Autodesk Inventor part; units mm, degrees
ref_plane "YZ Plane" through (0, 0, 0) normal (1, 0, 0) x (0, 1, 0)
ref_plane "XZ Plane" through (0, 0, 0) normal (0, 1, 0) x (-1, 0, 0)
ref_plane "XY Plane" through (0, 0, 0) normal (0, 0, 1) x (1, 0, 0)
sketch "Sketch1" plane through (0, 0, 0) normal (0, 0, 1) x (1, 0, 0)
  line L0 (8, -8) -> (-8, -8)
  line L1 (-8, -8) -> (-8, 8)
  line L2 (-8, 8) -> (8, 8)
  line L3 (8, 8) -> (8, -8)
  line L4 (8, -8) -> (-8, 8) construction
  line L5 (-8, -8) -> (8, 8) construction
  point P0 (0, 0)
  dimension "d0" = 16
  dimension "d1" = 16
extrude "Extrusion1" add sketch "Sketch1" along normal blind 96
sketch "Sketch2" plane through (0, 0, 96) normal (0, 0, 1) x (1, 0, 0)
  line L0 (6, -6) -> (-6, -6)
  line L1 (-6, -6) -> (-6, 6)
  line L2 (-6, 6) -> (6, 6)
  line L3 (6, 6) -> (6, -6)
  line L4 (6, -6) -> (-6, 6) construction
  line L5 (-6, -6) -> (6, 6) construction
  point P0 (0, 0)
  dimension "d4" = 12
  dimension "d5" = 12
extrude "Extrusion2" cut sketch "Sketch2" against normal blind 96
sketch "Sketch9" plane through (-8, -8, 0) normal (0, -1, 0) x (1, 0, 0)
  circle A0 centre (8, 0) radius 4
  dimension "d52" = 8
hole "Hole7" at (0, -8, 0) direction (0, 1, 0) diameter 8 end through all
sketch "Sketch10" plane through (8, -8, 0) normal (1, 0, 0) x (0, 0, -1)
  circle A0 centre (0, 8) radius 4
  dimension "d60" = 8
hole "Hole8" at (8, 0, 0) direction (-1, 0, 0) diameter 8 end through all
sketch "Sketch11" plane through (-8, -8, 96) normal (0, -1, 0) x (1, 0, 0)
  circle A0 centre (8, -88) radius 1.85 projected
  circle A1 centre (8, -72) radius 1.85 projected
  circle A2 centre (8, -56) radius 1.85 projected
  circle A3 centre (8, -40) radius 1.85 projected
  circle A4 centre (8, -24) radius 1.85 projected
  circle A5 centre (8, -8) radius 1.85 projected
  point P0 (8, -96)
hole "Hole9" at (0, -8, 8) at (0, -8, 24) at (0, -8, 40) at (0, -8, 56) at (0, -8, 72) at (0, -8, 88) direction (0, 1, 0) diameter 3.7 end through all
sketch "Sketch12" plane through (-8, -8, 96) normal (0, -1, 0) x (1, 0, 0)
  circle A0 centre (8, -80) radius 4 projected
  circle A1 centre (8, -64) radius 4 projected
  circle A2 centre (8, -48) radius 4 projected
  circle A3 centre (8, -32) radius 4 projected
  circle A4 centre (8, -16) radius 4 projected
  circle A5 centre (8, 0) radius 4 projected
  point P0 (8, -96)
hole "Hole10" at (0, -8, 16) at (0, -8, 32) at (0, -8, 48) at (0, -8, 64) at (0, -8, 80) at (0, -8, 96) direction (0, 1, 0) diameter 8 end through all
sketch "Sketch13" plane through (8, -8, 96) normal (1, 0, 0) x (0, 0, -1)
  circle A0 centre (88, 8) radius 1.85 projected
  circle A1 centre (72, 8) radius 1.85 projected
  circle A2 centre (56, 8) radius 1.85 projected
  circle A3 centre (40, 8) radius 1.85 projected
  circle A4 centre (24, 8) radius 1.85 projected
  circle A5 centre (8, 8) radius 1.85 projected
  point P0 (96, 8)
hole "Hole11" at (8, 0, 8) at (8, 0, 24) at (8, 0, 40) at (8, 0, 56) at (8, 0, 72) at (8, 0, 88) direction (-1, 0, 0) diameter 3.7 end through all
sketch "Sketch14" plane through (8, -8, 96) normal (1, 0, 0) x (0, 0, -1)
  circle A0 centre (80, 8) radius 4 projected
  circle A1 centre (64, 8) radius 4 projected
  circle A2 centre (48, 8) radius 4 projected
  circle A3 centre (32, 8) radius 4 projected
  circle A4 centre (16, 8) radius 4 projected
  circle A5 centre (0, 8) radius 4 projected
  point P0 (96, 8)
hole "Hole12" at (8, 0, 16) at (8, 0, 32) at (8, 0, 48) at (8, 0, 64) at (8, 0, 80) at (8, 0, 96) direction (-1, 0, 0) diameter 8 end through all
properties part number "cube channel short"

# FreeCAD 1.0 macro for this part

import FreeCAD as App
import Part
import Sketcher
from FreeCAD import Vector
Q = App.Units.Quantity

doc = App.newDocument("Part")
body = doc.addObject("PartDesign::Body", "Body")

# Sketch on XY plane
sketch1 = doc.addObject("Sketcher::SketchObject", "Sketch")
body.addObject(sketch1)
sketch1.AttachmentSupport = (doc.XY_Plane, [""])
sketch1.MapMode = "FlatFace"
sketch1.addGeometry([
    Part.LineSegment(Vector(-8, -8, 0), Vector(8, -8, 0)),
    Part.LineSegment(Vector(8, -8, 0), Vector(8, 8, 0)),
    Part.LineSegment(Vector(8, 8, 0), Vector(-8, 8, 0)),
    Part.LineSegment(Vector(-8, 8, 0), Vector(-8, -8, 0)),
], False)
sketch1.addConstraint([
    Sketcher.Constraint("Coincident", 0, 2, 1, 1),
    Sketcher.Constraint("Coincident", 1, 2, 2, 1),
    Sketcher.Constraint("Coincident", 2, 2, 3, 1),
    Sketcher.Constraint("Coincident", 3, 2, 0, 1),
    Sketcher.Constraint("Horizontal", 0),
    Sketcher.Constraint("Vertical", 1),
    Sketcher.Constraint("Horizontal", 2),
    Sketcher.Constraint("Vertical", 3),
    Sketcher.Constraint("Symmetric", 0, 2, 2, 2, -1, 1),
    Sketcher.Constraint("Equal", 2, 1),
    Sketcher.Constraint("DistanceX", 0, 1, 0, 2, Q("16 mm")),
])
pad1 = doc.addObject("PartDesign::Pad", "Pad")
body.addObject(pad1)
pad1.Profile = sketch1
pad1.Length = 96

# Sketch on XY plane
sketch2 = doc.addObject("Sketcher::SketchObject", "Sketch001")
body.addObject(sketch2)
sketch2.AttachmentSupport = (doc.XY_Plane, [""])
sketch2.MapMode = "FlatFace"
sketch2.AttachmentOffset = App.Placement(Vector(0, 0, 96), App.Rotation())
sketch2.addGeometry([
    Part.LineSegment(Vector(-6, -6, 0), Vector(6, -6, 0)),
    Part.LineSegment(Vector(6, -6, 0), Vector(6, 6, 0)),
    Part.LineSegment(Vector(6, 6, 0), Vector(-6, 6, 0)),
    Part.LineSegment(Vector(-6, 6, 0), Vector(-6, -6, 0)),
], False)
sketch2.addConstraint([
    Sketcher.Constraint("Coincident", 0, 2, 1, 1),
    Sketcher.Constraint("Coincident", 1, 2, 2, 1),
    Sketcher.Constraint("Coincident", 2, 2, 3, 1),
    Sketcher.Constraint("Coincident", 3, 2, 0, 1),
    Sketcher.Constraint("Horizontal", 0),
    Sketcher.Constraint("Vertical", 1),
    Sketcher.Constraint("Horizontal", 2),
    Sketcher.Constraint("Vertical", 3),
    Sketcher.Constraint("Symmetric", 0, 2, 2, 2, -1, 1),
    Sketcher.Constraint("Equal", 2, 1),
    Sketcher.Constraint("DistanceX", 0, 1, 0, 2, Q("12 mm")),
])
pocket1 = doc.addObject("PartDesign::Pocket", "Pocket")
body.addObject(pocket1)
pocket1.Profile = sketch2
pocket1.Length = 96

# Sketch on XZ plane
sketch3 = doc.addObject("Sketcher::SketchObject", "Sketch002")
body.addObject(sketch3)
sketch3.AttachmentSupport = (doc.XZ_Plane, [""])
sketch3.MapMode = "FlatFace"
sketch3.AttachmentOffset = App.Placement(Vector(0, 0, 8), App.Rotation())
sketch3.addGeometry(Part.Circle(Vector(0, 0, 0), Vector(0, 0, 1), 4), False)
sketch3.addConstraint([
    Sketcher.Constraint("Coincident", 0, 3, -1, 1),
    Sketcher.Constraint("Diameter", 0, Q("8 mm")),
])
doc.recompute()
hole = doc.addObject("PartDesign::Hole", "Hole")
body.addObject(hole)
hole.Profile = sketch3
hole.ThreadType = "None"
hole.Diameter = 8
hole.DepthType = "ThroughAll"

# Sketch on YZ plane
sketch4 = doc.addObject("Sketcher::SketchObject", "Sketch003")
body.addObject(sketch4)
sketch4.AttachmentSupport = (doc.YZ_Plane, [""])
sketch4.MapMode = "FlatFace"
sketch4.AttachmentOffset = App.Placement(Vector(0, 0, 8), App.Rotation())
sketch4.addGeometry(Part.Circle(Vector(0, 0, 0), Vector(0, 0, 1), 4), False)
sketch4.addConstraint([
    Sketcher.Constraint("Coincident", 0, 3, -1, 1),
    Sketcher.Constraint("Diameter", 0, Q("8 mm")),
])
doc.recompute()
hole2 = doc.addObject("PartDesign::Hole", "Hole001")
body.addObject(hole2)
hole2.Profile = sketch4
hole2.ThreadType = "None"
hole2.Diameter = 8
hole2.DepthType = "ThroughAll"

# Sketch on XZ plane
sketch5 = doc.addObject("Sketcher::SketchObject", "Sketch004")
body.addObject(sketch5)
sketch5.AttachmentSupport = (doc.XZ_Plane, [""])
sketch5.MapMode = "FlatFace"
sketch5.AttachmentOffset = App.Placement(Vector(0, 0, 8), App.Rotation())
sketch5.addGeometry([
    Part.Circle(Vector(0, 8, 0), Vector(0, 0, 1), 1.9),  # 0
    Part.Circle(Vector(0, 24, 0), Vector(0, 0, 1), 1.9),  # 1
    Part.Circle(Vector(0, 40, 0), Vector(0, 0, 1), 1.9),  # 2
    Part.Circle(Vector(0, 56, 0), Vector(0, 0, 1), 1.9),  # 3
    Part.Circle(Vector(0, 72, 0), Vector(0, 0, 1), 1.9),  # 4
    Part.Circle(Vector(0, 88, 0), Vector(0, 0, 1), 1.9),  # 5
], False)
sketch5.addConstraint([
    Sketcher.Constraint("Equal", 0, 1),
    Sketcher.Constraint("Equal", 1, 2),
    Sketcher.Constraint("Equal", 2, 3),
    Sketcher.Constraint("Equal", 3, 4),
    Sketcher.Constraint("Equal", 4, 5),
    Sketcher.Constraint("PointOnObject", 0, 3, -2),
    Sketcher.Constraint("PointOnObject", 1, 3, -2),
    Sketcher.Constraint("PointOnObject", 2, 3, -2),
    Sketcher.Constraint("PointOnObject", 3, 3, -2),
    Sketcher.Constraint("PointOnObject", 4, 3, -2),
    Sketcher.Constraint("PointOnObject", 5, 3, -2),
    Sketcher.Constraint("Diameter", 0, Q("3.7 mm")),
    Sketcher.Constraint("DistanceY", -1, 1, 0, 3, Q("8 mm")),
    Sketcher.Constraint("DistanceY", -1, 1, 1, 3, Q("24 mm")),
    Sketcher.Constraint("DistanceY", -1, 1, 2, 3, Q("40 mm")),
    Sketcher.Constraint("DistanceY", -1, 1, 3, 3, Q("56 mm")),
    Sketcher.Constraint("DistanceY", -1, 1, 4, 3, Q("72 mm")),
    Sketcher.Constraint("DistanceY", -1, 1, 5, 3, Q("88 mm")),
])
doc.recompute()
hole3 = doc.addObject("PartDesign::Hole", "Hole002")
body.addObject(hole3)
hole3.Profile = sketch5
hole3.ThreadType = "None"
hole3.Diameter = 3.7
hole3.DepthType = "ThroughAll"

# Sketch on XZ plane
sketch6 = doc.addObject("Sketcher::SketchObject", "Sketch005")
body.addObject(sketch6)
sketch6.AttachmentSupport = (doc.XZ_Plane, [""])
sketch6.MapMode = "FlatFace"
sketch6.AttachmentOffset = App.Placement(Vector(0, 0, 8), App.Rotation())
sketch6.addGeometry([
    Part.Circle(Vector(0, 16, 0), Vector(0, 0, 1), 4),  # 0
    Part.Circle(Vector(0, 32, 0), Vector(0, 0, 1), 4),  # 1
    Part.Circle(Vector(0, 48, 0), Vector(0, 0, 1), 4),  # 2
    Part.Circle(Vector(0, 64, 0), Vector(0, 0, 1), 4),  # 3
    Part.Circle(Vector(0, 80, 0), Vector(0, 0, 1), 4),  # 4
    Part.Circle(Vector(0, 96, 0), Vector(0, 0, 1), 4),  # 5
], False)
sketch6.addConstraint([
    Sketcher.Constraint("Equal", 0, 1),
    Sketcher.Constraint("Equal", 1, 2),
    Sketcher.Constraint("Equal", 2, 3),
    Sketcher.Constraint("Equal", 3, 4),
    Sketcher.Constraint("Equal", 4, 5),
    Sketcher.Constraint("PointOnObject", 0, 3, -2),
    Sketcher.Constraint("PointOnObject", 1, 3, -2),
    Sketcher.Constraint("PointOnObject", 2, 3, -2),
    Sketcher.Constraint("PointOnObject", 3, 3, -2),
    Sketcher.Constraint("PointOnObject", 4, 3, -2),
    Sketcher.Constraint("PointOnObject", 5, 3, -2),
    Sketcher.Constraint("Diameter", 0, Q("8 mm")),
    Sketcher.Constraint("DistanceY", -1, 1, 0, 3, Q("16 mm")),
    Sketcher.Constraint("DistanceY", -1, 1, 1, 3, Q("32 mm")),
    Sketcher.Constraint("DistanceY", -1, 1, 2, 3, Q("48 mm")),
    Sketcher.Constraint("DistanceY", -1, 1, 3, 3, Q("64 mm")),
    Sketcher.Constraint("DistanceY", -1, 1, 4, 3, Q("80 mm")),
    Sketcher.Constraint("DistanceY", -1, 1, 5, 3, Q("96 mm")),
])
doc.recompute()
hole4 = doc.addObject("PartDesign::Hole", "Hole003")
body.addObject(hole4)
hole4.Profile = sketch6
hole4.ThreadType = "None"
hole4.Diameter = 8
hole4.DepthType = "ThroughAll"

# Sketch on YZ plane
sketch7 = doc.addObject("Sketcher::SketchObject", "Sketch006")
body.addObject(sketch7)
sketch7.AttachmentSupport = (doc.YZ_Plane, [""])
sketch7.MapMode = "FlatFace"
sketch7.AttachmentOffset = App.Placement(Vector(0, 0, 8), App.Rotation())
sketch7.addGeometry([
    Part.Circle(Vector(0, 8, 0), Vector(0, 0, 1), 1.9),  # 0
    Part.Circle(Vector(0, 24, 0), Vector(0, 0, 1), 1.9),  # 1
    Part.Circle(Vector(0, 40, 0), Vector(0, 0, 1), 1.9),  # 2
    Part.Circle(Vector(0, 56, 0), Vector(0, 0, 1), 1.9),  # 3
    Part.Circle(Vector(0, 72, 0), Vector(0, 0, 1), 1.9),  # 4
    Part.Circle(Vector(0, 88, 0), Vector(0, 0, 1), 1.9),  # 5
], False)
sketch7.addConstraint([
    Sketcher.Constraint("Equal", 0, 1),
    Sketcher.Constraint("Equal", 1, 2),
    Sketcher.Constraint("Equal", 2, 3),
    Sketcher.Constraint("Equal", 3, 4),
    Sketcher.Constraint("Equal", 4, 5),
    Sketcher.Constraint("PointOnObject", 0, 3, -2),
    Sketcher.Constraint("PointOnObject", 1, 3, -2),
    Sketcher.Constraint("PointOnObject", 2, 3, -2),
    Sketcher.Constraint("PointOnObject", 3, 3, -2),
    Sketcher.Constraint("PointOnObject", 4, 3, -2),
    Sketcher.Constraint("PointOnObject", 5, 3, -2),
    Sketcher.Constraint("Diameter", 0, Q("3.7 mm")),
    Sketcher.Constraint("DistanceY", -1, 1, 0, 3, Q("8 mm")),
    Sketcher.Constraint("DistanceY", -1, 1, 1, 3, Q("24 mm")),
    Sketcher.Constraint("DistanceY", -1, 1, 2, 3, Q("40 mm")),
    Sketcher.Constraint("DistanceY", -1, 1, 3, 3, Q("56 mm")),
    Sketcher.Constraint("DistanceY", -1, 1, 4, 3, Q("72 mm")),
    Sketcher.Constraint("DistanceY", -1, 1, 5, 3, Q("88 mm")),
])
doc.recompute()
hole5 = doc.addObject("PartDesign::Hole", "Hole004")
body.addObject(hole5)
hole5.Profile = sketch7
hole5.ThreadType = "None"
hole5.Diameter = 3.7
hole5.DepthType = "ThroughAll"

# Sketch on YZ plane
sketch8 = doc.addObject("Sketcher::SketchObject", "Sketch007")
body.addObject(sketch8)
sketch8.AttachmentSupport = (doc.YZ_Plane, [""])
sketch8.MapMode = "FlatFace"
sketch8.AttachmentOffset = App.Placement(Vector(0, 0, 8), App.Rotation())
sketch8.addGeometry([
    Part.Circle(Vector(0, 16, 0), Vector(0, 0, 1), 4),  # 0
    Part.Circle(Vector(0, 32, 0), Vector(0, 0, 1), 4),  # 1
    Part.Circle(Vector(0, 48, 0), Vector(0, 0, 1), 4),  # 2
    Part.Circle(Vector(0, 64, 0), Vector(0, 0, 1), 4),  # 3
    Part.Circle(Vector(0, 80, 0), Vector(0, 0, 1), 4),  # 4
    Part.Circle(Vector(0, 96, 0), Vector(0, 0, 1), 4),  # 5
], False)
sketch8.addConstraint([
    Sketcher.Constraint("Equal", 0, 1),
    Sketcher.Constraint("Equal", 1, 2),
    Sketcher.Constraint("Equal", 2, 3),
    Sketcher.Constraint("Equal", 3, 4),
    Sketcher.Constraint("Equal", 4, 5),
    Sketcher.Constraint("PointOnObject", 0, 3, -2),
    Sketcher.Constraint("PointOnObject", 1, 3, -2),
    Sketcher.Constraint("PointOnObject", 2, 3, -2),
    Sketcher.Constraint("PointOnObject", 3, 3, -2),
    Sketcher.Constraint("PointOnObject", 4, 3, -2),
    Sketcher.Constraint("PointOnObject", 5, 3, -2),
    Sketcher.Constraint("Diameter", 0, Q("8 mm")),
    Sketcher.Constraint("DistanceY", -1, 1, 0, 3, Q("16 mm")),
    Sketcher.Constraint("DistanceY", -1, 1, 1, 3, Q("32 mm")),
    Sketcher.Constraint("DistanceY", -1, 1, 2, 3, Q("48 mm")),
    Sketcher.Constraint("DistanceY", -1, 1, 3, 3, Q("64 mm")),
    Sketcher.Constraint("DistanceY", -1, 1, 4, 3, Q("80 mm")),
    Sketcher.Constraint("DistanceY", -1, 1, 5, 3, Q("96 mm")),
])
doc.recompute()
hole6 = doc.addObject("PartDesign::Hole", "Hole005")
body.addObject(hole6)
hole6.Profile = sketch8
hole6.ThreadType = "None"
hole6.Diameter = 8
hole6.DepthType = "ThroughAll"

doc.recompute()
